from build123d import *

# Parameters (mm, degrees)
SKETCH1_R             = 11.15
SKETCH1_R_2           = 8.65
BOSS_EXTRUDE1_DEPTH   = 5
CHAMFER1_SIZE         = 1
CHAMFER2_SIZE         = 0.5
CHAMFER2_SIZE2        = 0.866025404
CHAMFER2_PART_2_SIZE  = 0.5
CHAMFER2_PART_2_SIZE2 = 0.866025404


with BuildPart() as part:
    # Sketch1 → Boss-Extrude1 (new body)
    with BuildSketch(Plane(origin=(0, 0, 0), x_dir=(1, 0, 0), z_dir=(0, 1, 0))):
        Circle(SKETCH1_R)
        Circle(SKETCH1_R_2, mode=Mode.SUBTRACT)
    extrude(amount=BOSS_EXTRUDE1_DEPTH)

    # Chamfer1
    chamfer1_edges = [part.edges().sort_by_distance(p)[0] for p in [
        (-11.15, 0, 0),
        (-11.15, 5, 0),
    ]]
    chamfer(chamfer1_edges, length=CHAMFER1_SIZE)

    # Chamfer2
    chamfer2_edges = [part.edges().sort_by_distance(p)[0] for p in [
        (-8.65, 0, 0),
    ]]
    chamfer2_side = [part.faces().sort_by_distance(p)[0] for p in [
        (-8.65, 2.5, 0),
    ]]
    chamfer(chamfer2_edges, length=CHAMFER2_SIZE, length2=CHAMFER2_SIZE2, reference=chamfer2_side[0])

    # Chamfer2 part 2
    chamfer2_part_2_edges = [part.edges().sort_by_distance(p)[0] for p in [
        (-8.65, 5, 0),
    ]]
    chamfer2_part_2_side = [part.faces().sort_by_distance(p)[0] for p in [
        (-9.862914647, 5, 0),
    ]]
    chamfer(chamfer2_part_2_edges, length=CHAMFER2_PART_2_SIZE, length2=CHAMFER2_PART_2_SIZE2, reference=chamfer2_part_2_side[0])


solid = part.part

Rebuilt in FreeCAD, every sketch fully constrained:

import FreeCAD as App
import Part
import Sketcher


def edges_at(feature, points):
    """Names of the edges that pass closest to the given points."""
    edges = feature.Shape.Edges
    near = lambda p: min(range(len(edges)), key=lambda i: edges[i].distToShape(Part.Vertex(*p))[0])
    return sorted({f"Edge{near(p) + 1}" for p in points})

doc = App.newDocument("Part")
body = doc.addObject("PartDesign::Body", "Body")

# Sketch on XZ plane
sketch1 = doc.addObject("Sketcher::SketchObject", "Sketch")
body.addObject(sketch1)
sketch1.AttachmentSupport = (doc.XZ_Plane, [""])
sketch1.MapMode = "FlatFace"
sketch1.addGeometry([
    Part.Circle(App.Vector(0, 0, 0), App.Vector(0, 0, 1), 11.15),
    Part.Circle(App.Vector(0, 0, 0), App.Vector(0, 0, 1), 8.65),
], False)
sketch1.addConstraint([
    Sketcher.Constraint("Coincident", 0, 3, -1, 1),
    Sketcher.Constraint("Coincident", 1, 3, -1, 1),
    Sketcher.Constraint("Diameter", 0, 22.3),
    Sketcher.Constraint("Diameter", 1, 17.3),
])
pad1 = doc.addObject("PartDesign::Pad", "Pad")
body.addObject(pad1)
pad1.Profile = sketch1
pad1.Length = 5
pad1.Reversed = True
doc.recompute()

chamfer = doc.addObject("PartDesign::Chamfer", "Chamfer")
body.addObject(chamfer)
chamfer.Base = (pad1, edges_at(pad1, [(-11.15, 0, 0), (-11.15, 5, 0)]))
chamfer.Size = 1
doc.recompute()

chamfer2 = doc.addObject("PartDesign::Chamfer", "Chamfer001")
body.addObject(chamfer2)
chamfer2.Base = (chamfer, edges_at(chamfer, [(-8.65, 0, 0)]))
chamfer2.ChamferType = "Two distances"
chamfer2.Size = 0.5
chamfer2.Size2 = 0.866025
chamfer2.FlipDirection = True
doc.recompute()

chamfer3 = doc.addObject("PartDesign::Chamfer", "Chamfer002")
body.addObject(chamfer3)
chamfer3.Base = (chamfer2, edges_at(chamfer2, [(-8.65, 5, 0)]))
chamfer3.ChamferType = "Two distances"
chamfer3.Size = 0.5
chamfer3.Size2 = 0.866025
chamfer3.FlipDirection = True

doc.recompute()
